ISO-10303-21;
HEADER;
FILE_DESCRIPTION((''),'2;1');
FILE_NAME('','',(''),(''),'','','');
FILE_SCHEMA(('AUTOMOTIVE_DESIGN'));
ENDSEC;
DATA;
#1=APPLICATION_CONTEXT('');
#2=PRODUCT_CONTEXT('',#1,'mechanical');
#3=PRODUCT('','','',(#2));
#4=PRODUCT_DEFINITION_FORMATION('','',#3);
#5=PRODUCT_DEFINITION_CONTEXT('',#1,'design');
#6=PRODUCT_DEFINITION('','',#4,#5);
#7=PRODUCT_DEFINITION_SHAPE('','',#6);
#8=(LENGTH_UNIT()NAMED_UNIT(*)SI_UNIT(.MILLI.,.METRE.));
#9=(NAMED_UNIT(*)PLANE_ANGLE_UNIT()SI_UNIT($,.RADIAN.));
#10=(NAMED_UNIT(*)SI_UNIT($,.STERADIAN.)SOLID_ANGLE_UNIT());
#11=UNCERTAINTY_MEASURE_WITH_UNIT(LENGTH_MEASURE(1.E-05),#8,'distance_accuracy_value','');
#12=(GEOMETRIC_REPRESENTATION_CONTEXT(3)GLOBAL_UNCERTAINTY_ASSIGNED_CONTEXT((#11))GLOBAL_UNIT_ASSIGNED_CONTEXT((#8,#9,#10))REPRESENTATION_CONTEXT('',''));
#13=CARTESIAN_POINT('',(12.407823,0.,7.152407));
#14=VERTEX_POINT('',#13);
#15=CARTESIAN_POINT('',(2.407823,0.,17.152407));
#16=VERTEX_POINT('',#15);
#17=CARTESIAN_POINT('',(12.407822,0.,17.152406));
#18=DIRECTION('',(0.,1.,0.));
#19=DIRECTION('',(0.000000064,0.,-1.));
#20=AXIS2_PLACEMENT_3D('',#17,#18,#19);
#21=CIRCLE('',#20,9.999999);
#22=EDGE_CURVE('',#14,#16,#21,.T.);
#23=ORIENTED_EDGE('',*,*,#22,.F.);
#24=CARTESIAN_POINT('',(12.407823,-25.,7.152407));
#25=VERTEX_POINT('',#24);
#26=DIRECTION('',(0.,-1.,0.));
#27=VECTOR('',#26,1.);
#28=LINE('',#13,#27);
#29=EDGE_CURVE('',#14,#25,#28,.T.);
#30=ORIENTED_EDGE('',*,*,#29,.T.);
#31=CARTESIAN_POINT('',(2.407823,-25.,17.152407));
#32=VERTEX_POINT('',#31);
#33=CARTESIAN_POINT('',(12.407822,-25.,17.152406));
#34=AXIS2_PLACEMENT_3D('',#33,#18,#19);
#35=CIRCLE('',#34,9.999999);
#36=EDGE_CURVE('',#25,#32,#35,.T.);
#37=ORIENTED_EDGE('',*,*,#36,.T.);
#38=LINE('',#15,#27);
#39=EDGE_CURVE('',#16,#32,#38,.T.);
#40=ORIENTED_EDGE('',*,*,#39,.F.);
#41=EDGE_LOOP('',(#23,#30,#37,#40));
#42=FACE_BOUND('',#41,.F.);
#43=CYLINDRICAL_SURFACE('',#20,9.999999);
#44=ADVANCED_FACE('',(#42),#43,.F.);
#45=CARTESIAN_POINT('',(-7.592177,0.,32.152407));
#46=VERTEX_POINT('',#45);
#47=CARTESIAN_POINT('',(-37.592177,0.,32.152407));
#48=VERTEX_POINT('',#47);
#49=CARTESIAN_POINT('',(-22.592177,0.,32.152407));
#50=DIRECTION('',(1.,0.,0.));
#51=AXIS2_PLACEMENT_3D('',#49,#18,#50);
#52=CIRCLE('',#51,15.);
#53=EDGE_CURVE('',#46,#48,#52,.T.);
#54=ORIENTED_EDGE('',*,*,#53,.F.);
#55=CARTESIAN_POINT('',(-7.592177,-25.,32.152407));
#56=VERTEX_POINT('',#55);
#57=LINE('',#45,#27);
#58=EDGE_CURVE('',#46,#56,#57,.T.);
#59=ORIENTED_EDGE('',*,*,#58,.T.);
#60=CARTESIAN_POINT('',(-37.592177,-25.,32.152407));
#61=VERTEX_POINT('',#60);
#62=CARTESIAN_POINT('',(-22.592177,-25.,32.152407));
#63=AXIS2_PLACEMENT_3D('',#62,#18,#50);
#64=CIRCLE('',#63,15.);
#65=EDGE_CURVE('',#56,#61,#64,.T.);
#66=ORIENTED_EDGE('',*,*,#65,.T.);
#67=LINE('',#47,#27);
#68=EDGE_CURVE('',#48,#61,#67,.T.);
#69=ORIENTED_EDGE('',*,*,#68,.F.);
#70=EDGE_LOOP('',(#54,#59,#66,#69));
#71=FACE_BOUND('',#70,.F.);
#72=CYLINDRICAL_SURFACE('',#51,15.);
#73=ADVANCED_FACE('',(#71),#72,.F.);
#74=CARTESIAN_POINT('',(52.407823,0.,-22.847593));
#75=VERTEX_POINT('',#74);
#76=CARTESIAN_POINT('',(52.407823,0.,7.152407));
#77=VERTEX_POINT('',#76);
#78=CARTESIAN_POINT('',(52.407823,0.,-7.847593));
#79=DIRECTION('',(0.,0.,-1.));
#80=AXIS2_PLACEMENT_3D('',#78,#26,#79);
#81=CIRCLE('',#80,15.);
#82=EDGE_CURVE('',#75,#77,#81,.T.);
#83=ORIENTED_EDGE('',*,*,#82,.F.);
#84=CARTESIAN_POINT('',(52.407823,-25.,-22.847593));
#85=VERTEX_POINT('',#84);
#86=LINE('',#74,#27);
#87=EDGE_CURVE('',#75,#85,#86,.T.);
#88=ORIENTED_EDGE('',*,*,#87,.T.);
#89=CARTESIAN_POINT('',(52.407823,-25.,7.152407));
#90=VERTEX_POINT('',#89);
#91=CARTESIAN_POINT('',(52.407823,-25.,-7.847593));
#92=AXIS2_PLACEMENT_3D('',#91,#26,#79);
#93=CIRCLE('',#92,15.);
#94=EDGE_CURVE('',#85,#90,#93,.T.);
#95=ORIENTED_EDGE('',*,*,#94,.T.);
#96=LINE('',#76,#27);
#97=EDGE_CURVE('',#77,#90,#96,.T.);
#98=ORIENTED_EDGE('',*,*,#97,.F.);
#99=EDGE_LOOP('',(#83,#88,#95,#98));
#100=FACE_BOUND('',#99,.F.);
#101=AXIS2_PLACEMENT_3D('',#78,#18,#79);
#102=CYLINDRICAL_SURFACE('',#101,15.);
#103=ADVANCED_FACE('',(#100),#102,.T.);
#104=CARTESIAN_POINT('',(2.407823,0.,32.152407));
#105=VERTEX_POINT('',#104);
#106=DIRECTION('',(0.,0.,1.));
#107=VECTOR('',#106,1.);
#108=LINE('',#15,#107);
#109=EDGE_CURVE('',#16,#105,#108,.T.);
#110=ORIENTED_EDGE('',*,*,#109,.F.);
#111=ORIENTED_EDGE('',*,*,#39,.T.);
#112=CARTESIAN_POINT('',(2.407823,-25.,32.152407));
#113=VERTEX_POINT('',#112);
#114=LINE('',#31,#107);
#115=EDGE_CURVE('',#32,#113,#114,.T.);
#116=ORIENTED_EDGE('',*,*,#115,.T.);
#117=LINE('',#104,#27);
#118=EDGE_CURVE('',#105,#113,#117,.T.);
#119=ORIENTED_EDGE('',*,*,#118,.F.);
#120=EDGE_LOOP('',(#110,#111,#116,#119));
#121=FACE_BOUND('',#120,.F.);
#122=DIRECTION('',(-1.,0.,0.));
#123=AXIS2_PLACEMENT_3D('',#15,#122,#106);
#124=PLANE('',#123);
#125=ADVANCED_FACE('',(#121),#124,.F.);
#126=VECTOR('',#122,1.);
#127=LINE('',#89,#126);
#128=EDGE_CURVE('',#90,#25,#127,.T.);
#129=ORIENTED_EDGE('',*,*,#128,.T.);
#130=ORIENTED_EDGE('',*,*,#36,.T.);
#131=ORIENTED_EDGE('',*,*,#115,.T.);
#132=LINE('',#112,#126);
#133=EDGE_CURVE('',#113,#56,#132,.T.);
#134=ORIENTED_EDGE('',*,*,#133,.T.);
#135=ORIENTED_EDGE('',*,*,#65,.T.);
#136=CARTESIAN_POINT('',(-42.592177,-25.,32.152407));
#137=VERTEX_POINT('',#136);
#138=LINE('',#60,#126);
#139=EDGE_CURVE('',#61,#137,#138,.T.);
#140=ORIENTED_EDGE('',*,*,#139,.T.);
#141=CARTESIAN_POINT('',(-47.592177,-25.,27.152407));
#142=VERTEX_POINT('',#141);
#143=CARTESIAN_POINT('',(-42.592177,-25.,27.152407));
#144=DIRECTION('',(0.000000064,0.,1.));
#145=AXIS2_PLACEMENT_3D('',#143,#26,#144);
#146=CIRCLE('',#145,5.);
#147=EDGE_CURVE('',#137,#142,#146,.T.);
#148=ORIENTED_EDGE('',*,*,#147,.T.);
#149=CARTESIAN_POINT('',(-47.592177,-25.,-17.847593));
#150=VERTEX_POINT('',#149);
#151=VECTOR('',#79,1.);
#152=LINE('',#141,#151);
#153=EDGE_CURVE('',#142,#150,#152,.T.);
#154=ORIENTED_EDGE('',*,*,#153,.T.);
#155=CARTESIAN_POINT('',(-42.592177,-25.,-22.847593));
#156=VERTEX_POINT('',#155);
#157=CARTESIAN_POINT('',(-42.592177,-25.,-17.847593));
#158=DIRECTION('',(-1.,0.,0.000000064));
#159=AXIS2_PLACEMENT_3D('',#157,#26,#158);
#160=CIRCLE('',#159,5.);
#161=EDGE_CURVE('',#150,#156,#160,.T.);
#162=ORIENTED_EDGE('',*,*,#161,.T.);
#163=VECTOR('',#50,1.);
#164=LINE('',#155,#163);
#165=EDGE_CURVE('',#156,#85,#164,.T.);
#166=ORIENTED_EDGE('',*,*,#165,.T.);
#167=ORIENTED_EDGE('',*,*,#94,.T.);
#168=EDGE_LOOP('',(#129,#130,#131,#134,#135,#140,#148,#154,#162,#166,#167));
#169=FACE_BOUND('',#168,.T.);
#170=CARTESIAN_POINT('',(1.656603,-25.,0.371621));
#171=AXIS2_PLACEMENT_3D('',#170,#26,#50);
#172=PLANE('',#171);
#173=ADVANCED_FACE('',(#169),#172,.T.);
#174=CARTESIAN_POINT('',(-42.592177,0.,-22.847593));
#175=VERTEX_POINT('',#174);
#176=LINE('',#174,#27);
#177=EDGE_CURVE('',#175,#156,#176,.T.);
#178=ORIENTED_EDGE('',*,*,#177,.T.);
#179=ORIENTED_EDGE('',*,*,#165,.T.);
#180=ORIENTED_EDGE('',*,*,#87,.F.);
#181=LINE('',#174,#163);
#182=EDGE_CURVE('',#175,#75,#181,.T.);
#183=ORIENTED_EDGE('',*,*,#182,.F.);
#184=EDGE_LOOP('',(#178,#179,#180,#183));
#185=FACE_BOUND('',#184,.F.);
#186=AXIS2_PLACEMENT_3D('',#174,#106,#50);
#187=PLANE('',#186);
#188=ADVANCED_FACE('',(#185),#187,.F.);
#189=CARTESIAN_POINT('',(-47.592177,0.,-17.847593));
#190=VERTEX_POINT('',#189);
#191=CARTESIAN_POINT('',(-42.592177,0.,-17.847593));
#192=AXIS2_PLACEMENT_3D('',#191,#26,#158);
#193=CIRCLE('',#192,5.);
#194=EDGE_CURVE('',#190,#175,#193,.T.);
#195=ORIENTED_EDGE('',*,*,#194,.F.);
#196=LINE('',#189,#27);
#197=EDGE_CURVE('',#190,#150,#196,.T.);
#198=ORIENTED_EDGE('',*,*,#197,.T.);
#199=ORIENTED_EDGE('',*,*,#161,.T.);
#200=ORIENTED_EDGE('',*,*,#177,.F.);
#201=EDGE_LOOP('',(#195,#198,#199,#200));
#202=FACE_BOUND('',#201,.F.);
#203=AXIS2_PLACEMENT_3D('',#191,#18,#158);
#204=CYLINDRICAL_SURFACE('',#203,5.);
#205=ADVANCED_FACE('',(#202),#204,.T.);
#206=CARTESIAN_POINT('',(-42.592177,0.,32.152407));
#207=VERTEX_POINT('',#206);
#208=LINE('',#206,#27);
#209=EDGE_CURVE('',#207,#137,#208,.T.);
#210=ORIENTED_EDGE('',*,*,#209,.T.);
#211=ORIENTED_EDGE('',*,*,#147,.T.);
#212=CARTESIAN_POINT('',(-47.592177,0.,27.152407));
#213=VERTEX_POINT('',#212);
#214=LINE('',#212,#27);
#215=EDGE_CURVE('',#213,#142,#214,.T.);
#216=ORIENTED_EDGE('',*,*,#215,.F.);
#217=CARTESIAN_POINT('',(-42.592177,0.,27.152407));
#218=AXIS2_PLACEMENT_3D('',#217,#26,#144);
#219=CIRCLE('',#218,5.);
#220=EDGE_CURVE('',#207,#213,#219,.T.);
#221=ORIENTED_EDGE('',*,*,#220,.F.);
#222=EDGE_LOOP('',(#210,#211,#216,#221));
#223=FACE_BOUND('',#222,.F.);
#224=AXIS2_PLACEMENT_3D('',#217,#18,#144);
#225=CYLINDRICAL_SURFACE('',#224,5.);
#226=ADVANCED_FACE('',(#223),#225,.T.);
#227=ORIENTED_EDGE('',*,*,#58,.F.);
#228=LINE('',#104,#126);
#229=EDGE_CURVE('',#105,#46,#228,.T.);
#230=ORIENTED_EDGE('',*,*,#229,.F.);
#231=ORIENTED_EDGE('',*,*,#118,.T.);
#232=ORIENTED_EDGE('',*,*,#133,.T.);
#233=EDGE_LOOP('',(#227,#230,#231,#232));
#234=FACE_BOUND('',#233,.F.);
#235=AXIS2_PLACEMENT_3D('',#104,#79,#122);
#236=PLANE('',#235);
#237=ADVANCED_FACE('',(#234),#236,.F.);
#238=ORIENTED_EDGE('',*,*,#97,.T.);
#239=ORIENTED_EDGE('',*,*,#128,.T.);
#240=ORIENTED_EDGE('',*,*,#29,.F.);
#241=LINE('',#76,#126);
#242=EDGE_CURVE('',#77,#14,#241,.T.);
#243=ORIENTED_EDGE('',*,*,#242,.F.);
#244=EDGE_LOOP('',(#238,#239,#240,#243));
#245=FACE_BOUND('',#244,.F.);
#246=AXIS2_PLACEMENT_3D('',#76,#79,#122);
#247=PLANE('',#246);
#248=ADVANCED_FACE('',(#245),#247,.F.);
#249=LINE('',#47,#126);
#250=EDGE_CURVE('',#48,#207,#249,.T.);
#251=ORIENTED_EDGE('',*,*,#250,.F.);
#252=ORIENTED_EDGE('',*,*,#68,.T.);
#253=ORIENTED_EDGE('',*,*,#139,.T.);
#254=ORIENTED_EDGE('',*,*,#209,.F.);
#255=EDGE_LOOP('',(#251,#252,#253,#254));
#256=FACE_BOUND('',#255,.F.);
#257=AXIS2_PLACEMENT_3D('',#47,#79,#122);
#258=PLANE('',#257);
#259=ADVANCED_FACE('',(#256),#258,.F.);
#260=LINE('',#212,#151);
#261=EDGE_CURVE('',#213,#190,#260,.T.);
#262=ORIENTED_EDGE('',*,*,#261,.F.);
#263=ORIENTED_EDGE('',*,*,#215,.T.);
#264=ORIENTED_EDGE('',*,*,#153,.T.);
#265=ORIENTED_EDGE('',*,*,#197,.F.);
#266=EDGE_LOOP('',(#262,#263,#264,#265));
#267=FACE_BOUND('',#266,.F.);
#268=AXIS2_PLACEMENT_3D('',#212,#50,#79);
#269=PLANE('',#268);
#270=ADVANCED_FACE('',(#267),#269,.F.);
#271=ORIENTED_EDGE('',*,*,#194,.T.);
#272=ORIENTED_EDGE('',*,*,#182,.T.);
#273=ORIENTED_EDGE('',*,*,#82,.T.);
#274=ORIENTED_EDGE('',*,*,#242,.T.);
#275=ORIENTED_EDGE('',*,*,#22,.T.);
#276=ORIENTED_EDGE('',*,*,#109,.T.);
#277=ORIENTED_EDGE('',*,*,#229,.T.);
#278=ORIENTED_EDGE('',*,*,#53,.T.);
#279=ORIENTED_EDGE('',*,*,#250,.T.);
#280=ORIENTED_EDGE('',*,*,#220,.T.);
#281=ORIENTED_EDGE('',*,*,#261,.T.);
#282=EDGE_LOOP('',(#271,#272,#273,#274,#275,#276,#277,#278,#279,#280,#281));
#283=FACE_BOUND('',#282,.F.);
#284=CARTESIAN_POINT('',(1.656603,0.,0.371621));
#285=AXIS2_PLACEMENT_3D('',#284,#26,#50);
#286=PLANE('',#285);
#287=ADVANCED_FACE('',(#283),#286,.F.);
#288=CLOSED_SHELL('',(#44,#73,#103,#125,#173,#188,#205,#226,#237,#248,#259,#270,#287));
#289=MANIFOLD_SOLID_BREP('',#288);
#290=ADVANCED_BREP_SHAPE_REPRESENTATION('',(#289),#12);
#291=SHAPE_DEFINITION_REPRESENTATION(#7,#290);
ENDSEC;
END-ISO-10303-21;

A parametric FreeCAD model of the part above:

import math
import FreeCAD as App
import Part
import Sketcher
from FreeCAD import Vector

doc = App.newDocument("Part")
params = doc.addObject("Spreadsheet::Sheet", "Params")
for row, (alias, value) in enumerate([
    ("sketch1_radius", "5 mm"),
    ("sketch1_radius2", "15 mm"),
    ("sketch1_radius3", "9.999999 mm"),
    ("sketch1_width", "95 mm"),
    ("sketch1_width2", "40 mm"),
    ("pad1_length", "25 mm"),
], start=1):
    params.set(f"A{row}", alias)
    params.set(f"B{row}", "=" + value)
    params.setAlias(f"B{row}", alias)

body = doc.addObject("PartDesign::Body", "Body")

sketch1 = body.newObject("Sketcher::SketchObject", "Sketch")
sketch1.AttachmentSupport = (doc.getObject("XZ_Plane"), [""])
sketch1.MapMode = "FlatFace"
sketch1.addGeometry([
    Part.ArcOfCircle(Part.Circle(Vector(-42.6, 27.2, 0), Vector(0, 0, 1), 5), math.radians(90), math.radians(180)),
    Part.LineSegment(Vector(-47.6, 27.2, 0), Vector(-47.6, -17.8, 0)),
    Part.ArcOfCircle(Part.Circle(Vector(-42.6, -17.8, 0), Vector(0, 0, 1), 5), math.radians(180), math.radians(270)),
    Part.LineSegment(Vector(-42.6, -22.8, 0), Vector(52.4, -22.8, 0)),
    Part.ArcOfCircle(Part.Circle(Vector(52.4, -7.8, 0), Vector(0, 0, 1), 15), math.radians(-90), math.radians(90)),
    Part.LineSegment(Vector(52.4, 7.2, 0), Vector(12.4, 7.2, 0)),
    Part.ArcOfCircle(Part.Circle(Vector(12.4, 17.2, 0), Vector(0, 0, 1), 10), math.radians(180), math.radians(270)),
    Part.LineSegment(Vector(2.4, 17.2, 0), Vector(2.4, 32.2, 0)),
    Part.LineSegment(Vector(2.4, 32.2, 0), Vector(-7.6, 32.2, 0)),
    Part.ArcOfCircle(Part.Circle(Vector(-22.6, 32.2, 0), Vector(0, 0, 1), 15), math.radians(180), math.radians(360)),
    Part.LineSegment(Vector(-37.6, 32.2, 0), Vector(-42.6, 32.2, 0)),
], False)
sketch1.addConstraint([
    Sketcher.Constraint("Tangent", 0, 2, 1, 1),
    Sketcher.Constraint("Tangent", 1, 2, 2, 1),
    Sketcher.Constraint("Tangent", 2, 2, 3, 1),
    Sketcher.Constraint("Tangent", 3, 2, 4, 1),
    Sketcher.Constraint("Tangent", 4, 2, 5, 1),
    Sketcher.Constraint("Tangent", 5, 2, 6, 2),
    Sketcher.Constraint("Tangent", 6, 1, 7, 1),
    Sketcher.Constraint("Coincident", 7, 2, 8, 1),
    Sketcher.Constraint("Coincident", 8, 2, 9, 2),
    Sketcher.Constraint("Coincident", 9, 1, 10, 1),
    Sketcher.Constraint("Tangent", 10, 2, 0, 1),
    Sketcher.Constraint("Vertical", 1),
    Sketcher.Constraint("Horizontal", 3),
    Sketcher.Constraint("Horizontal", 5),
    Sketcher.Constraint("Vertical", 7),
    Sketcher.Constraint("Horizontal", 8),
    Sketcher.Constraint("Horizontal", 10),
    Sketcher.Constraint("Equal", 0, 2),
    Sketcher.Constraint("Equal", 4, 9),
    Sketcher.Constraint("Horizontal", 9, 3, 7, 2),
    Sketcher.Constraint("Horizontal", 8, 2, 9, 1),
    Sketcher.Constraint("Radius", 0, 5.0),
    Sketcher.Constraint("Radius", 4, 15.0),
    Sketcher.Constraint("Radius", 6, 9.999999),
    Sketcher.Constraint("DistanceX", 3, 1, 3, 2, 95.0),
    Sketcher.Constraint("DistanceX", 5, 2, 5, 1, 40.0),
    Sketcher.Constraint("DistanceX", 8, 2, 8, 1, 10.0),
    Sketcher.Constraint("DistanceY", 1, 2, 1, 1, 45.0),
    Sketcher.Constraint("DistanceX", 0, 3, -1, 1, 42.592177),
    Sketcher.Constraint("DistanceY", -1, 1, 0, 3, 27.152407),
])
sketch1.setExpression("Constraints[21]", "Params.sketch1_radius")
sketch1.setExpression("Constraints[22]", "Params.sketch1_radius2")
sketch1.setExpression("Constraints[23]", "Params.sketch1_radius3")
sketch1.setExpression("Constraints[24]", "Params.sketch1_width")
sketch1.setExpression("Constraints[25]", "Params.sketch1_width2")
pad1 = body.newObject("PartDesign::Pad", "Pad")
pad1.Profile = sketch1
pad1.setExpression("Length", "Params.pad1_length")

doc.recompute()
